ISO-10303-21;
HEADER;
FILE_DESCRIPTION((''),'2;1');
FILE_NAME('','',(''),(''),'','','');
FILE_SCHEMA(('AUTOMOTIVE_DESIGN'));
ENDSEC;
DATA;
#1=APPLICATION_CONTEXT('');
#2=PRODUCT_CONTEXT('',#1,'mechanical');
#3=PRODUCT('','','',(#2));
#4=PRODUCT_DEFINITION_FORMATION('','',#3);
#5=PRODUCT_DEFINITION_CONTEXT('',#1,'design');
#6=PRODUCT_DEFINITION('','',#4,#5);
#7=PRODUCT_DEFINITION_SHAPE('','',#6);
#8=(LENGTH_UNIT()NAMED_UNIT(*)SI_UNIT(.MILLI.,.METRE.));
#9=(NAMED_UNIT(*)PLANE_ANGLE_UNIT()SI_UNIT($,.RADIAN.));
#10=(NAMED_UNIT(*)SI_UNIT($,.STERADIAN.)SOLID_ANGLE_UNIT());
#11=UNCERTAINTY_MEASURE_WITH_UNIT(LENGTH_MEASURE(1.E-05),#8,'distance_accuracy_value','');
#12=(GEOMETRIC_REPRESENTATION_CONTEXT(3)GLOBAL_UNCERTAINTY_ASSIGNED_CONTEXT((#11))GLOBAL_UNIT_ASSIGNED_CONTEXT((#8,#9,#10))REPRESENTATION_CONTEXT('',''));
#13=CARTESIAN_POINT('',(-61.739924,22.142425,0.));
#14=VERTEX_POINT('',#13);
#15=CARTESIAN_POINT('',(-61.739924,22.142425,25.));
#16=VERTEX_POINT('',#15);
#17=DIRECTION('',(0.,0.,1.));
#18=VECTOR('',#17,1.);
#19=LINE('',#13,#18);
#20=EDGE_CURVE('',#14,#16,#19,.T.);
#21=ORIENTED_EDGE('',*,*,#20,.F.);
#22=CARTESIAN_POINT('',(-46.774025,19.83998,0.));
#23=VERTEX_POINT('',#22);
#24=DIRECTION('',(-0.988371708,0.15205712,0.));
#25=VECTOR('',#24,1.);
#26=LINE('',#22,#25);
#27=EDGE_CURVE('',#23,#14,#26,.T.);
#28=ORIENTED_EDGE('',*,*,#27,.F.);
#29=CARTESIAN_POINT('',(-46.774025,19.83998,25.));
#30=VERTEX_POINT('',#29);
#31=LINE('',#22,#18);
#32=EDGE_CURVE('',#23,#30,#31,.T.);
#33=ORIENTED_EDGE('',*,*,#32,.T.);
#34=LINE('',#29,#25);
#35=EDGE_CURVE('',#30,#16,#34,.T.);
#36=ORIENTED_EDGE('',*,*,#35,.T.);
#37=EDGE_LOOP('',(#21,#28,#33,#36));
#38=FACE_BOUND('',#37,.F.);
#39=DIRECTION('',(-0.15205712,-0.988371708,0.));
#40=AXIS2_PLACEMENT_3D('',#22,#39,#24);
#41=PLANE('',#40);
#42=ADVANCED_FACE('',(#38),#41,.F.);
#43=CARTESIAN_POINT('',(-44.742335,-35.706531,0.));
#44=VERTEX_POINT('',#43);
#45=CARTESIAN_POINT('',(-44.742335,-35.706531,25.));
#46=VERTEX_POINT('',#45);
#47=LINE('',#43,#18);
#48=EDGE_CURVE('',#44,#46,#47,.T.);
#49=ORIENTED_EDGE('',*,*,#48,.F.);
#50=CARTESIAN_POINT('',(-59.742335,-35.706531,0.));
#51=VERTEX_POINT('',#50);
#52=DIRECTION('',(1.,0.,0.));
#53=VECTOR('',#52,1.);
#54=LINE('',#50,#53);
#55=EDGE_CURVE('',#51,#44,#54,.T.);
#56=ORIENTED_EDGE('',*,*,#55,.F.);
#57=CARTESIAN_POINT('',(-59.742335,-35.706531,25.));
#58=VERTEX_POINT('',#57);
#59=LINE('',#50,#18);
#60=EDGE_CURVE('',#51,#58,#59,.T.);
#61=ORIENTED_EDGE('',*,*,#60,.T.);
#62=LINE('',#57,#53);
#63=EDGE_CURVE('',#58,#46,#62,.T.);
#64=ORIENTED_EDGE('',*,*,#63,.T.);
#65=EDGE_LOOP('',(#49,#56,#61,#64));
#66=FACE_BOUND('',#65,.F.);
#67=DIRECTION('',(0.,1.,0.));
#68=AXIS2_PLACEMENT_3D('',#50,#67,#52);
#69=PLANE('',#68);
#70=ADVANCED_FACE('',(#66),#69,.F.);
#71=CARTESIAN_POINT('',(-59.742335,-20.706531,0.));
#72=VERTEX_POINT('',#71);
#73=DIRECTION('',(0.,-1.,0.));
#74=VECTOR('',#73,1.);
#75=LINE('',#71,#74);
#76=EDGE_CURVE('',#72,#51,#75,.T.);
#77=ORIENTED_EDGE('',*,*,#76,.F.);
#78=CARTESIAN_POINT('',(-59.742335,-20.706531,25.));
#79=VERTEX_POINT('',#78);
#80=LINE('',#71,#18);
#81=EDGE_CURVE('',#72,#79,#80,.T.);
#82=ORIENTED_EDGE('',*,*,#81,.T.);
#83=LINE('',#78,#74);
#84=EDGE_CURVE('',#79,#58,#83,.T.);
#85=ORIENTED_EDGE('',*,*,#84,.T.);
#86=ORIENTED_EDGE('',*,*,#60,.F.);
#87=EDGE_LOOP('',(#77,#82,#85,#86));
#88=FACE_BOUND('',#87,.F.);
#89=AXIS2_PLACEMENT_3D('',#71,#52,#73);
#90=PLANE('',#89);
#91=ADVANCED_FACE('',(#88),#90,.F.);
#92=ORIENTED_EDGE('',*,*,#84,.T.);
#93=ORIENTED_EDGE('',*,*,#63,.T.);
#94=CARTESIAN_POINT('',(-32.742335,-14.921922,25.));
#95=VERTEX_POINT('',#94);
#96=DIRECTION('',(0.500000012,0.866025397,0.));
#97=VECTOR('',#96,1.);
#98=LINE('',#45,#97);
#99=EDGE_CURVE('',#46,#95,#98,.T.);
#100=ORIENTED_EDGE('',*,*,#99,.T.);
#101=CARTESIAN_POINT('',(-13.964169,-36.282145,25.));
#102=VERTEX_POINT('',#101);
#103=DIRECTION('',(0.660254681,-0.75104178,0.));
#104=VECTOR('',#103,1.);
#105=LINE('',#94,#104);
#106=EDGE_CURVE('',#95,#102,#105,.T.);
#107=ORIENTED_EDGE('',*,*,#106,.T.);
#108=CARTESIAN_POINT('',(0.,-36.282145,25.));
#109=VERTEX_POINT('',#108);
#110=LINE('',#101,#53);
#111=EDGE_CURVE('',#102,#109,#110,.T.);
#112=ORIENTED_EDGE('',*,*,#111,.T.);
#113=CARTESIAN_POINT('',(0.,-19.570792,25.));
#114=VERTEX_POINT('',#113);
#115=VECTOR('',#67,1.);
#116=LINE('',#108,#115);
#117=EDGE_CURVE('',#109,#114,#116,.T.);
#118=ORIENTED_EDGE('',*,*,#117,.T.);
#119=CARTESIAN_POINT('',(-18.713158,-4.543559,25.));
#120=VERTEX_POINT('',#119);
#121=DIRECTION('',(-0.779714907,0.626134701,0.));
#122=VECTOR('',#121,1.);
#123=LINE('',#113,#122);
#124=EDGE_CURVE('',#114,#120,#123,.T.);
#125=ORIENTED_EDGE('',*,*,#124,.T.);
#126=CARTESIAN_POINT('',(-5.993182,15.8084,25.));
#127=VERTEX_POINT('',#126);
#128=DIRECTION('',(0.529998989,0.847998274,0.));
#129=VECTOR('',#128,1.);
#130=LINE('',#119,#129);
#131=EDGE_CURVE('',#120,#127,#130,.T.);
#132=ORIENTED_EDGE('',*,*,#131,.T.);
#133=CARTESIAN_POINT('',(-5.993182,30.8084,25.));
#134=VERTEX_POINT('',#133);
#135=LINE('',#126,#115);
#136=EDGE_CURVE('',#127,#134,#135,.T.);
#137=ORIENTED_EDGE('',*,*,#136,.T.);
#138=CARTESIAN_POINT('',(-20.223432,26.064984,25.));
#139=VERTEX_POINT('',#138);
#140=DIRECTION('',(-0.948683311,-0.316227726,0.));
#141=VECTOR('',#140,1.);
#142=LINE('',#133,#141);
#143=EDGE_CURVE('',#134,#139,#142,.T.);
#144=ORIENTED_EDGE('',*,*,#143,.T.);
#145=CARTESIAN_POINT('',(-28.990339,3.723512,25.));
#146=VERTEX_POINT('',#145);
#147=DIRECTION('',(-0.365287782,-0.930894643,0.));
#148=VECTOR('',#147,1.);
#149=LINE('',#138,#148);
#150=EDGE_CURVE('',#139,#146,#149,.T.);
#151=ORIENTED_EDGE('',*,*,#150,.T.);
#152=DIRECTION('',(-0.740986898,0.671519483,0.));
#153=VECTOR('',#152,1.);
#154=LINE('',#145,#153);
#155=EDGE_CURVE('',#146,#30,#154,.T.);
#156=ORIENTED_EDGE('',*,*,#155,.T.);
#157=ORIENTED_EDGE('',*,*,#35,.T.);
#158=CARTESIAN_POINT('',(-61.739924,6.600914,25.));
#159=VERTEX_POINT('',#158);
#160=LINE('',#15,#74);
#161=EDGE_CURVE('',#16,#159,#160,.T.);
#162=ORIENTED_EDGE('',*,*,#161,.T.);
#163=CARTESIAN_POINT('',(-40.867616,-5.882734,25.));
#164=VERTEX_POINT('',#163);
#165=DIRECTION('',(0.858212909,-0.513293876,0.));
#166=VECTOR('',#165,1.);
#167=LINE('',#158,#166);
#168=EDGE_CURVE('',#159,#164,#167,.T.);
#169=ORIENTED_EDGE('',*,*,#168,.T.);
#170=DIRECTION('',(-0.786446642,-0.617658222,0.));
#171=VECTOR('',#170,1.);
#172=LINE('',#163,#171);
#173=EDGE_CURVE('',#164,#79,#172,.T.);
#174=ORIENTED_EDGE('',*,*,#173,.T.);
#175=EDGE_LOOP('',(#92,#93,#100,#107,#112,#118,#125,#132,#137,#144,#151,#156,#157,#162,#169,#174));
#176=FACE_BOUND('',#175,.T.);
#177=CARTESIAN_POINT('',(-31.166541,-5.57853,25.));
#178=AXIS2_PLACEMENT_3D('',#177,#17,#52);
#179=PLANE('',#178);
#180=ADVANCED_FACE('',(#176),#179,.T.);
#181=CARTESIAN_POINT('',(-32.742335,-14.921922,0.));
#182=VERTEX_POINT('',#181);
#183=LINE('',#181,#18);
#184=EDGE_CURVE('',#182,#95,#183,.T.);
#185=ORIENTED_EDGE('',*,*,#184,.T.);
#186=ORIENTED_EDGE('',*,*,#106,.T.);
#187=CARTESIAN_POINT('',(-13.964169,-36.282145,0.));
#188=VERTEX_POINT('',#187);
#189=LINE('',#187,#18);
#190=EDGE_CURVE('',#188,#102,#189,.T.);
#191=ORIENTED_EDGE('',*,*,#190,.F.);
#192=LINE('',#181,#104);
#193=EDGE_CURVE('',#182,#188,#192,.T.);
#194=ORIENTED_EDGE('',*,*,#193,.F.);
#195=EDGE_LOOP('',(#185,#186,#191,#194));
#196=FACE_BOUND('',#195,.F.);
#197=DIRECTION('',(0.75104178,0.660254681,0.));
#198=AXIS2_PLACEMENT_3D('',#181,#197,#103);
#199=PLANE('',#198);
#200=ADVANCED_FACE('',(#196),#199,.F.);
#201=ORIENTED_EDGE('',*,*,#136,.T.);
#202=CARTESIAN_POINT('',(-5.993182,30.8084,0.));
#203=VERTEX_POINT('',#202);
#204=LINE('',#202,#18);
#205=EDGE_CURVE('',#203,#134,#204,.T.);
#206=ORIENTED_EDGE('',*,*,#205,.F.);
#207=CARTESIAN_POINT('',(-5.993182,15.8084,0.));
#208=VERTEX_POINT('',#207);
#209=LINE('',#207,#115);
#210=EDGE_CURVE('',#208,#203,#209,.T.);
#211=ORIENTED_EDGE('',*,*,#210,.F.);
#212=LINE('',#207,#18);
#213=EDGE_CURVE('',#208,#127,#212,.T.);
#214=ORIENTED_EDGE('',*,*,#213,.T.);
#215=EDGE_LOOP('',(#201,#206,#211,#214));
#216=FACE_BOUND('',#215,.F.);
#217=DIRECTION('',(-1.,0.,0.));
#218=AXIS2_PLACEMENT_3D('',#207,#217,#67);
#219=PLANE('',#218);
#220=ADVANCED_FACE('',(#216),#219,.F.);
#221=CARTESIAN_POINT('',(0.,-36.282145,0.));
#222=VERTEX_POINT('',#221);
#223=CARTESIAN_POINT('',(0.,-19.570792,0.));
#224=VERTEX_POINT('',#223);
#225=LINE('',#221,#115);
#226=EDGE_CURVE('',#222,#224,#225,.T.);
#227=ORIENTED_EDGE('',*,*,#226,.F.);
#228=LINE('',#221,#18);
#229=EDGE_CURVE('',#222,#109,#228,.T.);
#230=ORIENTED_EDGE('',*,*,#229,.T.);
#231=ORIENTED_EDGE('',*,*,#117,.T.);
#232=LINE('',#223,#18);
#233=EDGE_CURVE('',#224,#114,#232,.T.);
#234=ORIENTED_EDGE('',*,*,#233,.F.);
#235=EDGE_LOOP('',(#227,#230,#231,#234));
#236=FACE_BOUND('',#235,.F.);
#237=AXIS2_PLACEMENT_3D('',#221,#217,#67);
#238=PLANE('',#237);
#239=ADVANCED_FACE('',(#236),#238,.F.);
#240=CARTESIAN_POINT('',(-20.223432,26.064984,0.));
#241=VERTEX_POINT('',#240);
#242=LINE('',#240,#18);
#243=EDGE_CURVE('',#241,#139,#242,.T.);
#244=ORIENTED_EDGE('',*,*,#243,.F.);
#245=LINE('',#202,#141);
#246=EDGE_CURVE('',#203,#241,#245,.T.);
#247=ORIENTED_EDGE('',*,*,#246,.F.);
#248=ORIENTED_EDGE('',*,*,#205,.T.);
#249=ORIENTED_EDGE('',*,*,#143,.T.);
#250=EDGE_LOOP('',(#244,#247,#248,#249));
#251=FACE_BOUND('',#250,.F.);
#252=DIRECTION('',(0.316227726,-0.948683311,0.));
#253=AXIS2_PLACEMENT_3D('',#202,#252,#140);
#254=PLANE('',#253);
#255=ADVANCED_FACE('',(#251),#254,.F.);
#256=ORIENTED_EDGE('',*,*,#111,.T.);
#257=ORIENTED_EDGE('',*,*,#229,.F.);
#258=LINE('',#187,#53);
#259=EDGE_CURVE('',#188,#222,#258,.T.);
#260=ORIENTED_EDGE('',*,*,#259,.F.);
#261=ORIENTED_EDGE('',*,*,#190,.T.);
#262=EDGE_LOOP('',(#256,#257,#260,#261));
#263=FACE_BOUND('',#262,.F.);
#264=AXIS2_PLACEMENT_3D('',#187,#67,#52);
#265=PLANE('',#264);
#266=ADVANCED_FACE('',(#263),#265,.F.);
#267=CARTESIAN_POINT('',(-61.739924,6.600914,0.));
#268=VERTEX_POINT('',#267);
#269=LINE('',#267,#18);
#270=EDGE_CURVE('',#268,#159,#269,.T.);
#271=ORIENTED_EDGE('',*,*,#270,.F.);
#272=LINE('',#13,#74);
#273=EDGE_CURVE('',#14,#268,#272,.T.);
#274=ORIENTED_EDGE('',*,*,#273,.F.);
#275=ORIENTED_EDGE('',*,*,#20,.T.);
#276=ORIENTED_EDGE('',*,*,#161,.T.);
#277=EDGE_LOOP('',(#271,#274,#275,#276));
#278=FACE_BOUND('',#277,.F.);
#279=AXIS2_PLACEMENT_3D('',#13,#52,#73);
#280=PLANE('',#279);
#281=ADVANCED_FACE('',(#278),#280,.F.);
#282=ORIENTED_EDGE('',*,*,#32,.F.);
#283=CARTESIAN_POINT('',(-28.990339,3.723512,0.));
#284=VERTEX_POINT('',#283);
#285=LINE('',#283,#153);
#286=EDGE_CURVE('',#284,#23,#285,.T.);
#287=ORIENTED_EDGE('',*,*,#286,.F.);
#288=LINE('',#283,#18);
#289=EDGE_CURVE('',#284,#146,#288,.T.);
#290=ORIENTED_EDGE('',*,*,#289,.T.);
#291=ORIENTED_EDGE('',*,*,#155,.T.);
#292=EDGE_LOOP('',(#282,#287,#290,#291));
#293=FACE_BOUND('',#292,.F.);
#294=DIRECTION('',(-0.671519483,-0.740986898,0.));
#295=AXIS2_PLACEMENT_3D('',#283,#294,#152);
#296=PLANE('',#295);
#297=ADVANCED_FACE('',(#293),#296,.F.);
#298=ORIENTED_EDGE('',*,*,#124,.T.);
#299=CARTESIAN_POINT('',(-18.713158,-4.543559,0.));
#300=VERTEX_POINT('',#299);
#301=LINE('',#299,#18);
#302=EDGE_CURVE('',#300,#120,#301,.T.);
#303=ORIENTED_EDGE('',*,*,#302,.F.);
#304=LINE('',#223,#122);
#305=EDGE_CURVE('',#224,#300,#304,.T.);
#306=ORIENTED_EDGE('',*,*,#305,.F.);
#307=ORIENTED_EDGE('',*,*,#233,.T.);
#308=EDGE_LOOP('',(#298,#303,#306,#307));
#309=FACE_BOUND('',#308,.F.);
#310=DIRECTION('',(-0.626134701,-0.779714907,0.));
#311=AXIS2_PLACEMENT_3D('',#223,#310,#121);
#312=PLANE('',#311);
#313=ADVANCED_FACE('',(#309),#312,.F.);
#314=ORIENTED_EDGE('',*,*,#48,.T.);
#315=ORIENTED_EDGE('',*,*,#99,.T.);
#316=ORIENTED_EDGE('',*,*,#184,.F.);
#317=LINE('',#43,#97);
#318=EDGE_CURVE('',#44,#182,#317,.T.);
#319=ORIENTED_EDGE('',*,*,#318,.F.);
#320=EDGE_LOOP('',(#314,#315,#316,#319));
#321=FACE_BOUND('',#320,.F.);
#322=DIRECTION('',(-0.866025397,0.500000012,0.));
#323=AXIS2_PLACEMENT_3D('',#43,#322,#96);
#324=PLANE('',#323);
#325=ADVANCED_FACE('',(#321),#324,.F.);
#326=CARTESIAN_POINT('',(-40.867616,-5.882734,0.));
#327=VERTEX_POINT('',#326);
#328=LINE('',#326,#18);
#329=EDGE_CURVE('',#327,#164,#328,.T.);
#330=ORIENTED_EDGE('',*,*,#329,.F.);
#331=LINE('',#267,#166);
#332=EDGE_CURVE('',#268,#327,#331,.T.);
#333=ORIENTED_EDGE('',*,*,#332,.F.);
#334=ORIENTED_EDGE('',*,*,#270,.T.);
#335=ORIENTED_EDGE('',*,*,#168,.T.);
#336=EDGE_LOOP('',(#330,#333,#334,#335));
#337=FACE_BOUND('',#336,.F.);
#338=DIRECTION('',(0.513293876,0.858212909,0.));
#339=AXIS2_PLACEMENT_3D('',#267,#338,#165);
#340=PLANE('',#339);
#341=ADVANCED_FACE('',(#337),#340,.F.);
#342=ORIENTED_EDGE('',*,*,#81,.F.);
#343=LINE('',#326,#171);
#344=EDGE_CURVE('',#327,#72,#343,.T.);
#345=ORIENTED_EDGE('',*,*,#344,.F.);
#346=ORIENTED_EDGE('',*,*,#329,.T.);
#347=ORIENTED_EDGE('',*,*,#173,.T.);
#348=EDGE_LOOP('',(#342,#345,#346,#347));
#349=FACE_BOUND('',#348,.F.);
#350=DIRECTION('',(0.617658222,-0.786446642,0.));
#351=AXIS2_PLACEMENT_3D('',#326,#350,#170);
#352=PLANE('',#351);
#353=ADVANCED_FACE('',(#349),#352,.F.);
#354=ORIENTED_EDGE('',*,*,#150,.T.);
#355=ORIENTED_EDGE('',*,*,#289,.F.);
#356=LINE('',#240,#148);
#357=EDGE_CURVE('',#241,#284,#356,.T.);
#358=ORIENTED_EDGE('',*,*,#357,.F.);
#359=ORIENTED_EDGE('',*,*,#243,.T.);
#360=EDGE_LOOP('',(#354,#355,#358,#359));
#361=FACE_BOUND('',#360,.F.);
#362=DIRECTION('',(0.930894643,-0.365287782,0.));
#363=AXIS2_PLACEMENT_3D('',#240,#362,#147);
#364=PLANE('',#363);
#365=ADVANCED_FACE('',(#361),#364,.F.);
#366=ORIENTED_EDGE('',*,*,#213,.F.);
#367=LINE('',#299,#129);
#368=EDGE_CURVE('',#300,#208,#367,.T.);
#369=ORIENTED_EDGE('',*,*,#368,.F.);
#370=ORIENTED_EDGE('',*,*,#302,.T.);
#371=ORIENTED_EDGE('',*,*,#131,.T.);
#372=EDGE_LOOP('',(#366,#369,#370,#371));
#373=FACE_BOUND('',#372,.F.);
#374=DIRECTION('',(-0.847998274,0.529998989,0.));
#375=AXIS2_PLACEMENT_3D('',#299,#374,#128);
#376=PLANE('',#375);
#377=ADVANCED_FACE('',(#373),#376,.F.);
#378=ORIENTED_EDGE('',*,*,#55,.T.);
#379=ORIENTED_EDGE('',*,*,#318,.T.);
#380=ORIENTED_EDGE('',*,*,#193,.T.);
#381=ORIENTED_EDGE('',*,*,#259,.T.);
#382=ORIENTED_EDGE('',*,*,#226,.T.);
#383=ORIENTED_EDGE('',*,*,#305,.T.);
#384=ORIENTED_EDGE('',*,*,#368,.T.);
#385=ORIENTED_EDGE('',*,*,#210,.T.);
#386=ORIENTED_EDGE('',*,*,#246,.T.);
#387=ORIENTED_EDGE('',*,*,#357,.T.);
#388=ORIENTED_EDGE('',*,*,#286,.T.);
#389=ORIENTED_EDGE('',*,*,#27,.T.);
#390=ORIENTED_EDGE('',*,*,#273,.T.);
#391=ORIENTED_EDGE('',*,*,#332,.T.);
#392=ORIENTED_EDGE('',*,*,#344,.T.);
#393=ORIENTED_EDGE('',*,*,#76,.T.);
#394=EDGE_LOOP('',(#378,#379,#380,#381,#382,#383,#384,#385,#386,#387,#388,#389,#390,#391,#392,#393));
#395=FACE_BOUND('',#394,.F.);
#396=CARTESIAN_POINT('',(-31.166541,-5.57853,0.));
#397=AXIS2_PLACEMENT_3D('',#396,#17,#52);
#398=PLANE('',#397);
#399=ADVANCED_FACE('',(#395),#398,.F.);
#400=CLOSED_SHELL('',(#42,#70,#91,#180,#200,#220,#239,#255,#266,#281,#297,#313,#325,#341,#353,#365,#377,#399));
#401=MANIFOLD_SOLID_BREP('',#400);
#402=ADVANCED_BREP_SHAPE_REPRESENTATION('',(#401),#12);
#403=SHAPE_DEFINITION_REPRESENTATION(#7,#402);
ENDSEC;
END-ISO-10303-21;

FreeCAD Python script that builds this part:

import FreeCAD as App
import Part
import Sketcher
Q = App.Units.Quantity


def add_polygon(sketch, points):
    """Adds a closed chain of lines whose ends are joined by coincident constraints."""
    first, n = sketch.GeometryCount, len(points)
    for a, b in zip(points, points[1:] + points[:1]):
        sketch.addGeometry(Part.LineSegment(App.Vector(*a, 0), App.Vector(*b, 0)), False)
    for i in range(n):
        sketch.addConstraint(Sketcher.Constraint("Coincident", first + i, 2, first + (i + 1) % n, 1))

doc = App.newDocument("Part")
body = doc.addObject("PartDesign::Body", "Body")

# Sketch on XY plane
sketch1 = body.newObject("Sketcher::SketchObject", "Sketch")
sketch1.AttachmentSupport = (doc.getObject("XY_Plane"), [""])
sketch1.MapMode = "FlatFace"
add_polygon(sketch1, [(-59.742335, -20.706531), (-59.742335, -35.706531), (-44.742335, -35.706531), (-32.742335, -14.921922), (-13.964169, -36.282145), (0, -36.282145), (0, -19.570792), (-18.713158, -4.543559), (-5.993182, 15.8084), (-5.993182, 30.8084), (-20.223432, 26.064984), (-28.990339, 3.723512), (-46.774025, 19.83998), (-61.739924, 22.142425), (-61.739924, 6.600914), (-40.867616, -5.882734)])  # lines 0-15
sketch1.addConstraint(Sketcher.Constraint("Vertical", 0))
sketch1.addConstraint(Sketcher.Constraint("Horizontal", 1))
sketch1.addConstraint(Sketcher.Constraint("Horizontal", 4))
sketch1.addConstraint(Sketcher.Constraint("Vertical", 5))
sketch1.addConstraint(Sketcher.Constraint("Vertical", 8))
sketch1.addConstraint(Sketcher.Constraint("Vertical", 13))
sketch1.addConstraint(Sketcher.Constraint("PointOnObject", 4, 2, -2))
sketch1.addConstraint(Sketcher.Constraint("Equal", 1, 0))
sketch1.addConstraint(Sketcher.Constraint("Equal", 0, 8))
sketch1.addConstraint(Sketcher.Constraint("Equal", 2, 6))
sketch1.addConstraint(Sketcher.Constraint("Equal", 6, 7))
sketch1.addConstraint(Sketcher.Constraint("Equal", 7, 10))
sketch1.addConstraint(Sketcher.Constraint("Equal", 10, 11))
sketch1.addConstraint(Sketcher.Constraint("Equal", 11, 15))
sketch1.addConstraint(Sketcher.Constraint("DistanceX", 1, 1, 1, 2, 15.0))
sketch1.addConstraint(Sketcher.Constraint("Angle", 2, Q("59.999999 deg")))
sketch1.addConstraint(Sketcher.Constraint("Distance", 2, 23.999999))
sketch1.addConstraint(Sketcher.Constraint("Distance", 9, 15.0))
sketch1.addConstraint(Sketcher.Constraint("DistanceX", 4, 1, 4, 2, 13.964169))
sketch1.addConstraint(Sketcher.Constraint("DistanceY", 13, 2, 13, 1, 15.541511))
sketch1.addConstraint(Sketcher.Constraint("DistanceY", -1, 1, 7, 2, 15.8084))
sketch1.addConstraint(Sketcher.Constraint("DistanceX", 12, 2, 11, 2, 14.965899))
sketch1.addConstraint(Sketcher.Constraint("Distance", 3, 28.440792))
sketch1.addConstraint(Sketcher.Constraint("DistanceY", 5, 1, 5, 2, 16.711353))
sketch1.addConstraint(Sketcher.Constraint("DistanceY", 0, 2, -1, 1, 35.706531))
sketch1.addConstraint(Sketcher.Constraint("DistanceX", 6, 2, -1, 1, 18.713158))
sketch1.addConstraint(Sketcher.Constraint("DistanceY", 6, 2, -1, 1, 4.543559))
sketch1.addConstraint(Sketcher.Constraint("DistanceX", 9, 2, -1, 1, 20.223432))
sketch1.addConstraint(Sketcher.Constraint("DistanceX", 10, 2, -1, 1, 28.990339))
sketch1.addConstraint(Sketcher.Constraint("DistanceY", -1, 1, 11, 2, 19.83998))
sketch1.addConstraint(Sketcher.Constraint("DistanceY", 12, 2, 9, 2, 3.922559))
sketch1.addConstraint(Sketcher.Constraint("DistanceX", 14, 2, 2, 2, 8.125281))
pad1 = body.newObject("PartDesign::Pad", "Pad")
pad1.Profile = sketch1
pad1.Length = 25

doc.recompute()
